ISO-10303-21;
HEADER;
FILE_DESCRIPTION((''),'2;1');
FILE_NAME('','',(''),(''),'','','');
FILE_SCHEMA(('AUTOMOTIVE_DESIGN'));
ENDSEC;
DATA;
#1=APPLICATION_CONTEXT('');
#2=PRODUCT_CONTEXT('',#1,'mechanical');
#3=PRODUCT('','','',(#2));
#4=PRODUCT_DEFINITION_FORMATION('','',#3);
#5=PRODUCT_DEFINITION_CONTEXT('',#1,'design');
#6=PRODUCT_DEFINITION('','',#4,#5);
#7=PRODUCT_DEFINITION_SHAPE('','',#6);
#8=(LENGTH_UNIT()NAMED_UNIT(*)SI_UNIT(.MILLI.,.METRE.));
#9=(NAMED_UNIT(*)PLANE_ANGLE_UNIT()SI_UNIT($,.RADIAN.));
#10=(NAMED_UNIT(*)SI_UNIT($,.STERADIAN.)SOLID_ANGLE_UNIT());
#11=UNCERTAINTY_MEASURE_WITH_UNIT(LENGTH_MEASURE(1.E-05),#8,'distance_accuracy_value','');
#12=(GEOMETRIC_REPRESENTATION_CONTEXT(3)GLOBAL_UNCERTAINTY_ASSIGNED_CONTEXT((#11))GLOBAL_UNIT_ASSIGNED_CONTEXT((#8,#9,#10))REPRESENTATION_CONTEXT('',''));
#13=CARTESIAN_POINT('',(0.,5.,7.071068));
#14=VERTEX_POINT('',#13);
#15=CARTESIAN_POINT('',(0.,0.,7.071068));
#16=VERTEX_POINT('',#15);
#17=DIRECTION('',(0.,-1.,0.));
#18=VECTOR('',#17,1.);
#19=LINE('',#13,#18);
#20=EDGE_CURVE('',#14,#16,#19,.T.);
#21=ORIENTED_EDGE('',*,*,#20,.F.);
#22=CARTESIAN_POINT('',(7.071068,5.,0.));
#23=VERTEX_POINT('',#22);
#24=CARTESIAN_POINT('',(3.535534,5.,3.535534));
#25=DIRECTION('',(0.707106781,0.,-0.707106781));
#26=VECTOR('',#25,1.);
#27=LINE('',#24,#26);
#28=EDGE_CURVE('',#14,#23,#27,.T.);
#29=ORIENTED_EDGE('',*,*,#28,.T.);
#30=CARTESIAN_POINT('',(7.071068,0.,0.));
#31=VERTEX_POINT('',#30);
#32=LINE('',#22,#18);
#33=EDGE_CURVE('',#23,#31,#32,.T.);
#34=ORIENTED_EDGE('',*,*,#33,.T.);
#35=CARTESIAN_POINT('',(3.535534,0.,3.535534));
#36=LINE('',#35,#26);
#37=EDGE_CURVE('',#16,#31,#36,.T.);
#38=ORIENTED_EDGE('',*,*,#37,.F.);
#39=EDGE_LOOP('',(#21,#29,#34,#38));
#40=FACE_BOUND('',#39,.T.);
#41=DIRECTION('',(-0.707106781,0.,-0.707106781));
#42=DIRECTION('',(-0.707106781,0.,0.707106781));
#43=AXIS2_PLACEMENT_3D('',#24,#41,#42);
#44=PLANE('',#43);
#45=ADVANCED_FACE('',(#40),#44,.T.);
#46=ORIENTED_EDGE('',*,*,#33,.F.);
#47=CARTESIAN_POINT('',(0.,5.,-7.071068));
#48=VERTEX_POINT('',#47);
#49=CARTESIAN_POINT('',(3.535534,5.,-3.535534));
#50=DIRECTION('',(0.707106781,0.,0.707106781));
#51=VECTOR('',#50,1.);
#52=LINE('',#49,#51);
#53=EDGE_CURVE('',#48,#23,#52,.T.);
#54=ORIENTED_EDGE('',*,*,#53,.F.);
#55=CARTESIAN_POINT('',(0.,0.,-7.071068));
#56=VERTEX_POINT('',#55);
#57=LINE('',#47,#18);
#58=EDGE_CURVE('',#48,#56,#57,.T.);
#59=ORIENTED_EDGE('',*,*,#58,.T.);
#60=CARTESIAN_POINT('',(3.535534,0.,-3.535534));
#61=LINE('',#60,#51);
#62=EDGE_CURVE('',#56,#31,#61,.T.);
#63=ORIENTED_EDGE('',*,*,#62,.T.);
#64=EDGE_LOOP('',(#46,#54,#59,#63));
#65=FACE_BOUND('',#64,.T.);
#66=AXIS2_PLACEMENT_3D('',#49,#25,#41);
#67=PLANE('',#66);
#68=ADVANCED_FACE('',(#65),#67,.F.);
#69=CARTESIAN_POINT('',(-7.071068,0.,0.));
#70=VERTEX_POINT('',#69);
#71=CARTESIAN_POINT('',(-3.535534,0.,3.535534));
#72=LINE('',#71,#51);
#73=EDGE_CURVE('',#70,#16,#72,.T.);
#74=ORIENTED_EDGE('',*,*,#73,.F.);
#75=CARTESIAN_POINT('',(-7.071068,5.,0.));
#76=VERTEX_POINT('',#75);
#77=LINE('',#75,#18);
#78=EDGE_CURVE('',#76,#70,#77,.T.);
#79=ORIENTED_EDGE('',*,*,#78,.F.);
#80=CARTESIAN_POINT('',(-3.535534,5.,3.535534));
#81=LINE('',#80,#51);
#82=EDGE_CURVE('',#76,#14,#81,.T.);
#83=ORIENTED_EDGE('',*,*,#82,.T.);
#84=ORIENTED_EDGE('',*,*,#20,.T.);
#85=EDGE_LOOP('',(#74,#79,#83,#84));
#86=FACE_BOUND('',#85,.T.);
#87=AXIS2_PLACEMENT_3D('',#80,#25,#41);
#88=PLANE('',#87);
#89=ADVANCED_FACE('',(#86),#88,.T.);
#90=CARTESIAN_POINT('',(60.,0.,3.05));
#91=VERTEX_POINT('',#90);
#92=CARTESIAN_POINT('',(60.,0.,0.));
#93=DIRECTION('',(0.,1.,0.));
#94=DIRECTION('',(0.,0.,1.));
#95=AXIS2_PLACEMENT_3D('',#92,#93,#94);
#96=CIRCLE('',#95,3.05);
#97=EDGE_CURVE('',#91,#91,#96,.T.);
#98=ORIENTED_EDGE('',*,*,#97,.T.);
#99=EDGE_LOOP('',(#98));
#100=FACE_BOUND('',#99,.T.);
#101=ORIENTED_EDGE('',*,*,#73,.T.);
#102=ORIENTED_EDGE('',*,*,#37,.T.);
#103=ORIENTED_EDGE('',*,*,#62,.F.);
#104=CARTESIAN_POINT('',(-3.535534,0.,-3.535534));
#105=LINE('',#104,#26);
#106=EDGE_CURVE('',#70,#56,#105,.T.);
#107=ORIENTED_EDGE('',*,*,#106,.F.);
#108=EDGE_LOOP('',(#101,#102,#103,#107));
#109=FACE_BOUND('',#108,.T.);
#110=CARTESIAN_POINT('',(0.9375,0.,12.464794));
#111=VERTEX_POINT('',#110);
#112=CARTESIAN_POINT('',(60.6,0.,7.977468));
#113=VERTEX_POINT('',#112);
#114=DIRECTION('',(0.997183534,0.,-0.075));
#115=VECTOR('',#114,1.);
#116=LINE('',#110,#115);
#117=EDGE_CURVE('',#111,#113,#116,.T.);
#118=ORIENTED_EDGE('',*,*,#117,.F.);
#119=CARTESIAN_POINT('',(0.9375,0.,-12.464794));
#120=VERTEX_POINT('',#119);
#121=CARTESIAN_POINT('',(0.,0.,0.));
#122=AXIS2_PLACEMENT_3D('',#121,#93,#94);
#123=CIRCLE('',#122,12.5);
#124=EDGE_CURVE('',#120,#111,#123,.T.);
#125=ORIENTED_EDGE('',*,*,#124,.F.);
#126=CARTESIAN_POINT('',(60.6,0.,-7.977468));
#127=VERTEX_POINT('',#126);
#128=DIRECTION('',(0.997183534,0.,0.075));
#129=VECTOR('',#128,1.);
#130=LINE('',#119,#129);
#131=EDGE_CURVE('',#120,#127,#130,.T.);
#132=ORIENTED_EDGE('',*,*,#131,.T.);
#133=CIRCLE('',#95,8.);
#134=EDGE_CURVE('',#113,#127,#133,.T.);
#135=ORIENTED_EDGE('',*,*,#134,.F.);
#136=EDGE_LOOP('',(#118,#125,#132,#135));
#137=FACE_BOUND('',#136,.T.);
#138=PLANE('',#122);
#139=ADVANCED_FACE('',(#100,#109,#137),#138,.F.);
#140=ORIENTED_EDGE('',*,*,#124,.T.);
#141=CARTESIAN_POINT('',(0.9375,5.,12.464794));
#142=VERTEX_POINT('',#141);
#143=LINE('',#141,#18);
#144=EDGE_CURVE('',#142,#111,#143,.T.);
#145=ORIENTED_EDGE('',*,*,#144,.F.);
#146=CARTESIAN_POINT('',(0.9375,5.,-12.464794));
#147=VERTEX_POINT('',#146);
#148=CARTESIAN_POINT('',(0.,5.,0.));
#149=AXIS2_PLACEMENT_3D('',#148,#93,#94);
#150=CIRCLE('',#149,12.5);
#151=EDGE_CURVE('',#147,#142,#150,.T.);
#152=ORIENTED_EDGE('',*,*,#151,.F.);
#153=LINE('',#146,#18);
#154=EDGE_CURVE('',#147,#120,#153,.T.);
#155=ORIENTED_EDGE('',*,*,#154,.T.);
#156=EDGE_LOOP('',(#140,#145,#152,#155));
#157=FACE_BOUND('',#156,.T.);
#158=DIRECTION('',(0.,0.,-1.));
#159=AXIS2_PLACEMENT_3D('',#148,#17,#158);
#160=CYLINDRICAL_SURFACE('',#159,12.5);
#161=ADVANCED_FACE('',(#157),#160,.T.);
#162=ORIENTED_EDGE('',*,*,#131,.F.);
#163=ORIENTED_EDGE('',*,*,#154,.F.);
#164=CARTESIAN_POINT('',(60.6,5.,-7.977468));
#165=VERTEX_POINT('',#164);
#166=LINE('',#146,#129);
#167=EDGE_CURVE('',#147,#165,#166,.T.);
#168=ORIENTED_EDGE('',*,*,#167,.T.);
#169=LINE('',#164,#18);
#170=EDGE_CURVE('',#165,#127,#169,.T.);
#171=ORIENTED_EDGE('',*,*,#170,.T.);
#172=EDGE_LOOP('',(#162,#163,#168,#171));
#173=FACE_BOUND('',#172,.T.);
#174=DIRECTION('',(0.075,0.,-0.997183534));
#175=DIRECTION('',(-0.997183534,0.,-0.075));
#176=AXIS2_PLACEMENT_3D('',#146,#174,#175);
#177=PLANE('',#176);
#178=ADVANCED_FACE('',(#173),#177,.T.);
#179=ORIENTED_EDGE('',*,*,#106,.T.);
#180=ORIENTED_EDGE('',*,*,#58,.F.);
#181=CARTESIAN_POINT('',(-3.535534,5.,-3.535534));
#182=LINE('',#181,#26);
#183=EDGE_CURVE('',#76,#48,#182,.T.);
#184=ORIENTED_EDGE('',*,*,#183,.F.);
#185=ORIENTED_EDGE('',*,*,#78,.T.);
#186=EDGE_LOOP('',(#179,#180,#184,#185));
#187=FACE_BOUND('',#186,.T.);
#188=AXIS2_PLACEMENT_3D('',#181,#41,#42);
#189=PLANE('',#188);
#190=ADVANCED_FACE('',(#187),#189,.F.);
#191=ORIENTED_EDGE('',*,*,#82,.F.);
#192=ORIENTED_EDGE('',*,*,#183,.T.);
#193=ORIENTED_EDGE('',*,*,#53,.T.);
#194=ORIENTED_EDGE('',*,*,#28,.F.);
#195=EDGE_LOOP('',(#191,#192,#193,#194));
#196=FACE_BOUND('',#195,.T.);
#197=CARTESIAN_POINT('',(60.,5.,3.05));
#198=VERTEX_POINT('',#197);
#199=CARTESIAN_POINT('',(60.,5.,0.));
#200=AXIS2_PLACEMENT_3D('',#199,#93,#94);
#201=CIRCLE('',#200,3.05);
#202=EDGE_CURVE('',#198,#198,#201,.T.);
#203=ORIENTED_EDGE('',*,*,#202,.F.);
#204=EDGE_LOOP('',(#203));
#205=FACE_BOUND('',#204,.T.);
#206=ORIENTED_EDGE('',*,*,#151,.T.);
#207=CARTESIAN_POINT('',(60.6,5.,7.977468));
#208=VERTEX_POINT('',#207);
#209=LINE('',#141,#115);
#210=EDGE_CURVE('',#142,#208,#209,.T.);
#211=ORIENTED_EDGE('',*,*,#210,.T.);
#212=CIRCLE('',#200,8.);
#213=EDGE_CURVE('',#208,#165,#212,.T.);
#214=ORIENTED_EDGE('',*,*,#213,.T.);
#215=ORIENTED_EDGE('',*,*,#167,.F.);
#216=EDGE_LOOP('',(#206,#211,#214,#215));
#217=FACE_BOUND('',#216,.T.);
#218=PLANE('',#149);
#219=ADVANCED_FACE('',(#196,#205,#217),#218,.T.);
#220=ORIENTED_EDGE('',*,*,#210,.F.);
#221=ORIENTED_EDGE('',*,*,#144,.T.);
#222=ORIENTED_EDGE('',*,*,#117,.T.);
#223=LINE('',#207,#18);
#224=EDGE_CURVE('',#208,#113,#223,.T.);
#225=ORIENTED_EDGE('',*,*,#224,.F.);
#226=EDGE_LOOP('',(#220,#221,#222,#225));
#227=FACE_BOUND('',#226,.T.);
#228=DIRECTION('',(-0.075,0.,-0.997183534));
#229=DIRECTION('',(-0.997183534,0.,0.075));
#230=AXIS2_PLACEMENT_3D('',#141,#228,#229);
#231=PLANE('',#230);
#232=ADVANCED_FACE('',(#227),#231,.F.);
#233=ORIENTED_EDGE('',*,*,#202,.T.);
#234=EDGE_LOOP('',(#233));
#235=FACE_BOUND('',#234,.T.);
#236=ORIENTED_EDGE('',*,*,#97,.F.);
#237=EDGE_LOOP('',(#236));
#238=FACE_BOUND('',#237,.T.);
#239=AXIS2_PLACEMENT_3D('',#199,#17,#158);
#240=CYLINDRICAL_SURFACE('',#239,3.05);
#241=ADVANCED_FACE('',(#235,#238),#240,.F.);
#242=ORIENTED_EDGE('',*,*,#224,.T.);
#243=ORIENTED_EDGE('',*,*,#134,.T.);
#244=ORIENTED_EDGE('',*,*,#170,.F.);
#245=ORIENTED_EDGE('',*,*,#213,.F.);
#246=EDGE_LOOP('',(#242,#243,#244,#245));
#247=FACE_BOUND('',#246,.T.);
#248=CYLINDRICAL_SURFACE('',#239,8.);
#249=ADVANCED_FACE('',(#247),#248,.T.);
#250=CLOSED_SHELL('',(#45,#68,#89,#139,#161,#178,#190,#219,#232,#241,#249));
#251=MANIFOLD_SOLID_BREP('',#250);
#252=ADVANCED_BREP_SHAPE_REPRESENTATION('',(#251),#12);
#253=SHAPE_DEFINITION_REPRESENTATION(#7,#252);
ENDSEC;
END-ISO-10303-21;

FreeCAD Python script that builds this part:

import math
import FreeCAD as App
import Part
import Sketcher
Q = App.Units.Quantity


def add_polygon(sketch, points):
    """Adds a closed chain of lines whose ends are joined by coincident constraints."""
    first, n = sketch.GeometryCount, len(points)
    for a, b in zip(points, points[1:] + points[:1]):
        sketch.addGeometry(Part.LineSegment(App.Vector(*a, 0), App.Vector(*b, 0)), False)
    for i in range(n):
        sketch.addConstraint(Sketcher.Constraint("Coincident", first + i, 2, first + (i + 1) % n, 1))

doc = App.newDocument("Part")
body = doc.addObject("PartDesign::Body", "Body")

sketch1 = body.newObject("Sketcher::SketchObject", "Sketch")
sketch1.AttachmentSupport = (doc.getObject("XZ_Plane"), [""])
sketch1.MapMode = "FlatFace"
sketch1.addGeometry(Part.LineSegment(App.Vector(0.9375, 12.464794, 0), App.Vector(60.6, 7.977468, 0)), False)
sketch1.addGeometry(Part.ArcOfCircle(Part.Circle(App.Vector(60, 0, 0), App.Vector(0, 0, 1), 8), math.radians(-85.698778), math.radians(85.698778)), False)
sketch1.addGeometry(Part.LineSegment(App.Vector(60.6, -7.977468, 0), App.Vector(0.9375, -12.464794, 0)), False)
sketch1.addGeometry(Part.ArcOfCircle(Part.Circle(App.Vector(0, 0, 0), App.Vector(0, 0, 1), 12.5), math.radians(85.698778), math.radians(274.301222)), False)
add_polygon(sketch1, [(-7.071068, 0), (0, -7.071068), (7.071068, 0), (0, 7.071068)])
sketch1.addGeometry(Part.Circle(App.Vector(60, 0, 0), App.Vector(0, 0, 1), 3.05), False)
sketch1.addConstraint(Sketcher.Constraint("Tangent", 0, 2, 1, 2))
sketch1.addConstraint(Sketcher.Constraint("Tangent", 1, 1, 2, 1))
sketch1.addConstraint(Sketcher.Constraint("Tangent", 2, 2, 3, 2))
sketch1.addConstraint(Sketcher.Constraint("Tangent", 3, 1, 0, 1))
sketch1.addConstraint(Sketcher.Constraint("Coincident", 3, 3, -1, 1))
sketch1.addConstraint(Sketcher.Constraint("Coincident", 8, 3, 1, 3))
sketch1.addConstraint(Sketcher.Constraint("Symmetric", 4, 2, 6, 2, -1, 1))
sketch1.addConstraint(Sketcher.Constraint("Symmetric", 5, 2, 7, 2, -1, 1))
sketch1.addConstraint(Sketcher.Constraint("PointOnObject", 1, 3, -1))
sketch1.addConstraint(Sketcher.Constraint("PointOnObject", 4, 2, -2))
sketch1.addConstraint(Sketcher.Constraint("PointOnObject", 5, 2, -1))
sketch1.addConstraint(Sketcher.Constraint("Perpendicular", 4, 5))
sketch1.addConstraint(Sketcher.Constraint("Radius", 1, Q("8 mm")))
sketch1.addConstraint(Sketcher.Constraint("Diameter", 8, Q("6.1 mm")))
sketch1.addConstraint(Sketcher.Constraint("Radius", 3, Q("12.5 mm")))
sketch1.addConstraint(Sketcher.Constraint("Distance", 4, Q("10 mm")))
sketch1.addConstraint(Sketcher.Constraint("DistanceX", -1, 1, 1, 3, Q("60 mm")))
pad1 = body.newObject("PartDesign::Pad", "Pad")
pad1.Profile = sketch1
pad1.Length = 5
pad1.Reversed = True

doc.recompute()
